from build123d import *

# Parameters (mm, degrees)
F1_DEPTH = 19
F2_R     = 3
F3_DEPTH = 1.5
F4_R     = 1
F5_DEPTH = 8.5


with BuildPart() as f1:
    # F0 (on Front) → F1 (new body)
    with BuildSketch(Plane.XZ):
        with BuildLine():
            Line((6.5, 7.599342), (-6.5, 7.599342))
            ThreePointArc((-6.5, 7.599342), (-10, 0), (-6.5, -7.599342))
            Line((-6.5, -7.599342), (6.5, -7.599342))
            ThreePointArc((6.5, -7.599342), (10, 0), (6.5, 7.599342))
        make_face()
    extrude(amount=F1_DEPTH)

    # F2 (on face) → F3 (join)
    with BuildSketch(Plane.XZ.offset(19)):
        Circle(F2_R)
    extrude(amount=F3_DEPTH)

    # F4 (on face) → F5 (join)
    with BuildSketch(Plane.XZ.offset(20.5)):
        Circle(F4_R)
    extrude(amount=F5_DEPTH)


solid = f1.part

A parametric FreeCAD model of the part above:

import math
import FreeCAD as App
import Part
import Sketcher

doc = App.newDocument("Part")
body = doc.addObject("PartDesign::Body", "Body")

sketch1 = body.newObject("Sketcher::SketchObject", "Sketch")
sketch1.AttachmentSupport = (doc.getObject("XZ_Plane"), [""])
sketch1.MapMode = "FlatFace"
sketch1.addGeometry([
    Part.LineSegment(App.Vector(6, 8, 0), App.Vector(-6, 8, 0)),
    Part.ArcOfCircle(Part.Circle(App.Vector(0, 0, 0), App.Vector(0, 0, 1), 10), math.radians(131), math.radians(229)),
    Part.LineSegment(App.Vector(-6, -8, 0), App.Vector(6, -8, 0)),
    Part.ArcOfCircle(Part.Circle(App.Vector(0, 0, 0), App.Vector(0, 0, 1), 10), math.radians(-49), math.radians(49)),
], False)
sketch1.addConstraint([
    Sketcher.Constraint("Coincident", 0, 2, 1, 1),
    Sketcher.Constraint("Coincident", 1, 2, 2, 1),
    Sketcher.Constraint("Coincident", 2, 2, 3, 1),
    Sketcher.Constraint("Coincident", 3, 2, 0, 1),
    Sketcher.Constraint("Horizontal", 0),
    Sketcher.Constraint("Horizontal", 2),
    Sketcher.Constraint("Coincident", 1, 3, -1, 1),
    Sketcher.Constraint("Coincident", 3, 3, -1, 1),
    Sketcher.Constraint("Equal", 1, 3),
    Sketcher.Constraint("Vertical", 0, 2, 1, 2),
    Sketcher.Constraint("Radius", 1, 10.0),
    Sketcher.Constraint("DistanceX", 0, 2, 0, 1, 13.0),
])
pad1 = body.newObject("PartDesign::Pad", "Pad")
pad1.Profile = sketch1
pad1.Length = 19

sketch2 = body.newObject("Sketcher::SketchObject", "Sketch001")
sketch2.AttachmentSupport = (doc.getObject("XZ_Plane"), [""])
sketch2.MapMode = "FlatFace"
sketch2.AttachmentOffset = App.Placement(App.Vector(0, 0, 19), App.Rotation())
sketch2.addGeometry(Part.Circle(App.Vector(0, 0, 0), App.Vector(0, 0, 1), 3), False)
sketch2.addConstraint([
    Sketcher.Constraint("Coincident", 0, 3, -1, 1),
    Sketcher.Constraint("Diameter", 0, 6.0),
])
pad2 = body.newObject("PartDesign::Pad", "Pad001")
pad2.Profile = sketch2
pad2.Length = 1.5

sketch3 = body.newObject("Sketcher::SketchObject", "Sketch002")
sketch3.AttachmentSupport = (doc.getObject("XZ_Plane"), [""])
sketch3.MapMode = "FlatFace"
sketch3.AttachmentOffset = App.Placement(App.Vector(0, 0, 20.5), App.Rotation())
sketch3.addGeometry(Part.Circle(App.Vector(0, 0, 0), App.Vector(0, 0, 1), 1), False)
sketch3.addConstraint([
    Sketcher.Constraint("Coincident", 0, 3, -1, 1),
    Sketcher.Constraint("Diameter", 0, 2.0),
])
pad3 = body.newObject("PartDesign::Pad", "Pad002")
pad3.Profile = sketch3
pad3.Length = 8.5

doc.recompute()
